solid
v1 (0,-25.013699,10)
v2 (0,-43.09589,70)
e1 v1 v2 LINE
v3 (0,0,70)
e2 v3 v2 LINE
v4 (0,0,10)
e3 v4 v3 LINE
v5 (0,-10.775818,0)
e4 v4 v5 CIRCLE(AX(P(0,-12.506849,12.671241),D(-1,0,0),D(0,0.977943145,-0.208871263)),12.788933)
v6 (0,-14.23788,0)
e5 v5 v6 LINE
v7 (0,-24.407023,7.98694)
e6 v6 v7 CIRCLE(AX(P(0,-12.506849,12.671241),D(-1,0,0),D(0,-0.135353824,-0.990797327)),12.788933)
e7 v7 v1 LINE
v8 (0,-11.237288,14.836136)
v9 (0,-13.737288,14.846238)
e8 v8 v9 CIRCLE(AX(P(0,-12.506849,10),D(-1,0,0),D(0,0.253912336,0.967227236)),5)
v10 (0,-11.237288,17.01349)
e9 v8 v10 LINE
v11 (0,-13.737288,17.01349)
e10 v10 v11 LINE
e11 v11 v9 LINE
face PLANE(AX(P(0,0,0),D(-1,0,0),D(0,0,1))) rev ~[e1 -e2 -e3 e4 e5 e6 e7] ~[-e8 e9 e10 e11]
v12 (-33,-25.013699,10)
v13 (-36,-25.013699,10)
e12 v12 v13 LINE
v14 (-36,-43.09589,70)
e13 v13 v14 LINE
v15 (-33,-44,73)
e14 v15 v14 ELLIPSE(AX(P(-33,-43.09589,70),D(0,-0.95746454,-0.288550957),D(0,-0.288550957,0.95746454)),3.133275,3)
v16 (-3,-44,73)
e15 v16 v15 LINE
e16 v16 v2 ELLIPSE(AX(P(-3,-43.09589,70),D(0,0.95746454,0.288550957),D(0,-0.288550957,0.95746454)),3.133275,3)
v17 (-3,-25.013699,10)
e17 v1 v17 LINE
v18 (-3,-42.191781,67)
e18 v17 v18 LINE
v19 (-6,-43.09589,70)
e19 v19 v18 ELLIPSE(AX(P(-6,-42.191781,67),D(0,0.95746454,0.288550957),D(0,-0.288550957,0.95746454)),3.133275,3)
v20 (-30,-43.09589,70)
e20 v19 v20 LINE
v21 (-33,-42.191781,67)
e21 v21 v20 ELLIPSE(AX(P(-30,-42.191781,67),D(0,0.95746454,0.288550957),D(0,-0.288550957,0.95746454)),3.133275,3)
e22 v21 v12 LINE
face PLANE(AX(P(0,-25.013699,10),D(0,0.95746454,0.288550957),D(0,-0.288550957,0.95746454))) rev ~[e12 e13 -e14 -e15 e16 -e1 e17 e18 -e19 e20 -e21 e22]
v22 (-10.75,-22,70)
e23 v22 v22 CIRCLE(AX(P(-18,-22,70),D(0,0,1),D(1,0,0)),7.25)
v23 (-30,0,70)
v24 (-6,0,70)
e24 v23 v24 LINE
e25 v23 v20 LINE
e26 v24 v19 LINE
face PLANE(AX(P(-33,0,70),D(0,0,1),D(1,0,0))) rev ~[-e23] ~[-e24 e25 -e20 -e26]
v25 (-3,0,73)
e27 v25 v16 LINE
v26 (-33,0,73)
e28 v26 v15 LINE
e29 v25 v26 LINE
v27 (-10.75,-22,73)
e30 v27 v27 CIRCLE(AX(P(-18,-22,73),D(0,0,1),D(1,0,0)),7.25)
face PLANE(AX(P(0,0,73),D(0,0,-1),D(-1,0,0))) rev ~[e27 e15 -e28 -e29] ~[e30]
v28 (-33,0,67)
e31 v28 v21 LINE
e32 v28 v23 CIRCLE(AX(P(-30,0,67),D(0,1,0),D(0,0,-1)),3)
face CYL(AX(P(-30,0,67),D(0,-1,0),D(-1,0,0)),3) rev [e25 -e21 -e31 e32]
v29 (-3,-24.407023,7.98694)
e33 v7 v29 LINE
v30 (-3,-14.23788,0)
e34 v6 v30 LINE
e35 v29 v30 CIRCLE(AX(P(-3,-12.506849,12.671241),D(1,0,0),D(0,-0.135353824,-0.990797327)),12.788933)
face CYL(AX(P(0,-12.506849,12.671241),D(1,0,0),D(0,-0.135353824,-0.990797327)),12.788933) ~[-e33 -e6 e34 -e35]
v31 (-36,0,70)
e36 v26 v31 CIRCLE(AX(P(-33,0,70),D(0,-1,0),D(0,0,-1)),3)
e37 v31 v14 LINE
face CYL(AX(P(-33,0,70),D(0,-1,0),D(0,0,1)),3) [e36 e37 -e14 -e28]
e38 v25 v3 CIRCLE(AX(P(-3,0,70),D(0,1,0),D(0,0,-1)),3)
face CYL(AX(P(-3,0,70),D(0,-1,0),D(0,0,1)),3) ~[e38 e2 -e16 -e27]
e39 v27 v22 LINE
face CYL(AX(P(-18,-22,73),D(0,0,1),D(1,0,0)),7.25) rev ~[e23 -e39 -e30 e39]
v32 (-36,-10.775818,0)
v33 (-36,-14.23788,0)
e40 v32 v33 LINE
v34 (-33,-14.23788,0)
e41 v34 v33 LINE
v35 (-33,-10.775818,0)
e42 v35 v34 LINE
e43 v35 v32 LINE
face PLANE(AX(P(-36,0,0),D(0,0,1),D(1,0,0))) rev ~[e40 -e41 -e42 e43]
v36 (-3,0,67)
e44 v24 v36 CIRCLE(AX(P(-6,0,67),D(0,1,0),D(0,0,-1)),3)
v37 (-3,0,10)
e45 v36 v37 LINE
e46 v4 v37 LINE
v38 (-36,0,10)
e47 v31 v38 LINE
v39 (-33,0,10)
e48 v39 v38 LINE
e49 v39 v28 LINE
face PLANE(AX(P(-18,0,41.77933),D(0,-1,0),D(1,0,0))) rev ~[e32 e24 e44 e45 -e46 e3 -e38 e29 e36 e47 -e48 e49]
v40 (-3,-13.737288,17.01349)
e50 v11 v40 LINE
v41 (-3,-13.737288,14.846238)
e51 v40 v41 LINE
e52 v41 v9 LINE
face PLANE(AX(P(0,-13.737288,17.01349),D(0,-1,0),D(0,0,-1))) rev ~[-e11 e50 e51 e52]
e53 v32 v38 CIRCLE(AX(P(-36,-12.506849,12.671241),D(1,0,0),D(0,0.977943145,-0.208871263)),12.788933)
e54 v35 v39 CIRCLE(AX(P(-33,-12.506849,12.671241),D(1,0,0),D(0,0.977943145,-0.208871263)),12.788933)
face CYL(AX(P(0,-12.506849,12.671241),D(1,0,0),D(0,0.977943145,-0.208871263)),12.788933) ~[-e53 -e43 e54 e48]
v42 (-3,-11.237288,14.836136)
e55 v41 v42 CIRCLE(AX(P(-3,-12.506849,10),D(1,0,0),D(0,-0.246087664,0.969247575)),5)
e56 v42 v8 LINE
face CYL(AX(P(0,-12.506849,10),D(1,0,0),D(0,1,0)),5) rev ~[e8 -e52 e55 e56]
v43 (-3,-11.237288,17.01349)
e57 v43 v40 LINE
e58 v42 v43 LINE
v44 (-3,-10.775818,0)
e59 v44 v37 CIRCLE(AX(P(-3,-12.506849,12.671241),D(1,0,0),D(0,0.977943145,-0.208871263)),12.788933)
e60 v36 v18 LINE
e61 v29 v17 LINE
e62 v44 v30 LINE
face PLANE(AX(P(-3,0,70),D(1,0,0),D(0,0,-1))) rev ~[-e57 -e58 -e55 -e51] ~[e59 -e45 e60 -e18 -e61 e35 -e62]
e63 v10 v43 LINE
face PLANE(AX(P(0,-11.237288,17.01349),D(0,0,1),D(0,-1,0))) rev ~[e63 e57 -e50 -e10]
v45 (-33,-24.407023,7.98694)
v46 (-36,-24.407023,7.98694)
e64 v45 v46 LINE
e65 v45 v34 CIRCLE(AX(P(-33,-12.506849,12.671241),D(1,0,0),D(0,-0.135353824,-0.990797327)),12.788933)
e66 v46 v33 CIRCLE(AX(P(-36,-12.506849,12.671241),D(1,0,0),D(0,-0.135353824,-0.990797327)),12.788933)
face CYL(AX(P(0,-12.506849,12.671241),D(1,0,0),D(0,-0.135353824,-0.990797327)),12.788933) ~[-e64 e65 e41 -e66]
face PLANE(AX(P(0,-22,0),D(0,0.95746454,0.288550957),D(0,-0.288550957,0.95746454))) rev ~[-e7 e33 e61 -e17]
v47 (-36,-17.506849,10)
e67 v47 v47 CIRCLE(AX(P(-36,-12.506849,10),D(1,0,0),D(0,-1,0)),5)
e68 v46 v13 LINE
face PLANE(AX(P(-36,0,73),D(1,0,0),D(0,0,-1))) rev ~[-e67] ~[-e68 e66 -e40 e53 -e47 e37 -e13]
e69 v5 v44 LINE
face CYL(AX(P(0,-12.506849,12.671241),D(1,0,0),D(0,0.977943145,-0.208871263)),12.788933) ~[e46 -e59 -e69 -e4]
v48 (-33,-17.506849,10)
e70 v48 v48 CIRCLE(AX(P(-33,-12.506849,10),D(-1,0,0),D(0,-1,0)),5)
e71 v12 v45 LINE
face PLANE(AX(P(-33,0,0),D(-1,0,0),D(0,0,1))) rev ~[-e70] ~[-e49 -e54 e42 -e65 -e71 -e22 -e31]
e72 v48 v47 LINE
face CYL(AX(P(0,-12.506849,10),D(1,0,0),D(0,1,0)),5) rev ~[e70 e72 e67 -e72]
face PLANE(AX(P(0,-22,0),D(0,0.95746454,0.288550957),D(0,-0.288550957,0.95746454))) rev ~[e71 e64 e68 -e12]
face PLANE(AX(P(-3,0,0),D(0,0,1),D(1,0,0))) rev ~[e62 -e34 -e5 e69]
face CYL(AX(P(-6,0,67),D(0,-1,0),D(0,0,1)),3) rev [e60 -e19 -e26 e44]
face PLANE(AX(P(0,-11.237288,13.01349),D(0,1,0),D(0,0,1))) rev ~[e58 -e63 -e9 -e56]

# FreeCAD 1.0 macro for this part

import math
import FreeCAD as App
import Part
import Sketcher


def edges_at(feature, points):
    """Names of the edges that pass closest to the given points."""
    edges = feature.Shape.Edges
    near = lambda p: min(range(len(edges)), key=lambda i: edges[i].distToShape(Part.Vertex(*p))[0])
    return sorted({f"Edge{near(p) + 1}" for p in points})


def add_polygon(sketch, points):
    """Adds a closed chain of lines whose ends are joined by coincident constraints."""
    first, n = sketch.GeometryCount, len(points)
    for a, b in zip(points, points[1:] + points[:1]):
        sketch.addGeometry(Part.LineSegment(App.Vector(*a, 0), App.Vector(*b, 0)), False)
    for i in range(n):
        sketch.addConstraint(Sketcher.Constraint("Coincident", first + i, 2, first + (i + 1) % n, 1))

doc = App.newDocument("Part")
body = doc.addObject("PartDesign::Body", "Body")

sketch1 = body.newObject("Sketcher::SketchObject", "Sketch")
sketch1.AttachmentSupport = (doc.getObject("XZ_Plane"), [""])
sketch1.MapMode = "FlatFace"
add_polygon(sketch1, [(-36, 0), (-33, 0), (-33, 70), (-3, 70), (-3, 0), (0, 0), (0, 73), (-36, 73)])
sketch1.addConstraint([
    Sketcher.Constraint("Horizontal", 0),
    Sketcher.Constraint("Vertical", 1),
    Sketcher.Constraint("Horizontal", 2),
    Sketcher.Constraint("Vertical", 3),
    Sketcher.Constraint("Horizontal", 4),
    Sketcher.Constraint("Vertical", 5),
    Sketcher.Constraint("Horizontal", 6),
    Sketcher.Constraint("Vertical", 7),
    Sketcher.Constraint("Coincident", 4, 2, -1, 1),
    Sketcher.Constraint("PointOnObject", 0, 2, -1),
    Sketcher.Constraint("Equal", 0, 4),
    Sketcher.Constraint("DistanceX", 0, 1, 0, 2, 3.0),
    Sketcher.Constraint("DistanceX", 2, 1, 2, 2, 30.0),
    Sketcher.Constraint("DistanceY", 1, 1, 1, 2, 70.0),
    Sketcher.Constraint("DistanceY", 5, 1, 5, 2, 73.0),
])
pad1 = body.newObject("PartDesign::Pad", "Pad")
pad1.Profile = sketch1
pad1.Length = 44

sketch2 = body.newObject("Sketcher::SketchObject", "Sketch001")
sketch2.AttachmentSupport = (doc.getObject("YZ_Plane"), [""])
sketch2.MapMode = "FlatFace"
add_polygon(sketch2, [(-44, 73), (-44, 0), (-22, 0), (-25, 10)])
sketch2.addConstraint([
    Sketcher.Constraint("Vertical", 0),
    Sketcher.Constraint("Horizontal", 1),
    Sketcher.Constraint("PointOnObject", 0, 2, -1),
    Sketcher.Constraint("Parallel", 2, 3),
    Sketcher.Constraint("DistanceX", 1, 1, 1, 2, 22.0),
    Sketcher.Constraint("DistanceY", 0, 2, 0, 1, 73.0),
    Sketcher.Constraint("DistanceX", 0, 2, -1, 1, 44.0),
    Sketcher.Constraint("DistanceY", -1, 1, 2, 2, 10.0),
])
pocket1 = body.newObject("PartDesign::Pocket", "Pocket")
pocket1.Profile = sketch2
pocket1.Length = 55.2

sketch3 = body.newObject("Sketcher::SketchObject", "Sketch002")
sketch3.AttachmentSupport = (doc.getObject("YZ_Plane"), [""])
sketch3.MapMode = "FlatFace"
sketch3.addGeometry([
    Part.LineSegment(App.Vector(-24.4, 8, 0), App.Vector(-25, 10, 0)),
    Part.ArcOfCircle(Part.Circle(App.Vector(-12.5, 12.7, 0), App.Vector(0, 0, 1), 12.8), math.radians(-167.94), math.radians(-158.51)),
    Part.LineSegment(App.Vector(-22, 0, 0), App.Vector(-14.2, 0, 0)),
    Part.ArcOfCircle(Part.Circle(App.Vector(-12.5, 12.7, 0), App.Vector(0, 0, 1), 12.8), math.radians(-159), math.radians(-98)),
    Part.LineSegment(App.Vector(-24.4, 8, 0), App.Vector(-22, 0, 0)),
    Part.LineSegment(App.Vector(0, 0, 0), App.Vector(0, 10, 0)),
    Part.ArcOfCircle(Part.Circle(App.Vector(-12.5, 12.7, 0), App.Vector(0, 0, 1), 12.8), math.radians(-82), math.radians(-12)),
    Part.LineSegment(App.Vector(-10.8, 0, 0), App.Vector(0, 0, 0)),
], False)
sketch3.addConstraint([
    Sketcher.Constraint("Coincident", 0, 1, 1, 2),
    Sketcher.Constraint("Coincident", 1, 1, 0, 2),
    Sketcher.Constraint("Coincident", 2, 2, 3, 2),
    Sketcher.Constraint("Coincident", 3, 1, 4, 1),
    Sketcher.Constraint("Coincident", 4, 2, 2, 1),
    Sketcher.Constraint("Coincident", 5, 2, 6, 2),
    Sketcher.Constraint("Coincident", 6, 1, 7, 1),
    Sketcher.Constraint("Coincident", 7, 2, 5, 1),
    Sketcher.Constraint("Horizontal", 2),
    Sketcher.Constraint("Vertical", 5),
    Sketcher.Constraint("Horizontal", 7),
    Sketcher.Constraint("Coincident", 7, 2, -1, 1),
    Sketcher.Constraint("Coincident", 3, 3, 1, 3),
    Sketcher.Constraint("Coincident", 6, 3, 1, 3),
    Sketcher.Constraint("Coincident", 3, 1, 0, 1),
    Sketcher.Constraint("Equal", 3, 6),
    Sketcher.Constraint("PointOnObject", 2, 2, -1),
    Sketcher.Constraint("Parallel", 0, 4),
    Sketcher.Constraint("Horizontal", 1, 1, 5, 2),
    Sketcher.Constraint("DistanceY", 5, 1, 5, 2, 10.0),
    Sketcher.Constraint("DistanceX", 4, 2, -1, 1, 22.0),
    Sketcher.Constraint("Radius", 1, 12.788933),
    Sketcher.Constraint("DistanceX", 2, 1, 2, 2, 7.76212),
])
pocket2 = body.newObject("PartDesign::Pocket", "Pocket001")
pocket2.Profile = sketch3
pocket2.Length = 63.6

sketch4 = body.newObject("Sketcher::SketchObject", "Sketch003")
sketch4.AttachmentSupport = (doc.getObject("YZ_Plane"), [""])
sketch4.MapMode = "FlatFace"
sketch4.addGeometry(Part.Circle(App.Vector(-13, 10, 0), App.Vector(0, 0, 1), 5), False)
sketch4.addConstraint([
    Sketcher.Constraint("Diameter", 0, 10.0),
    Sketcher.Constraint("DistanceY", -1, 1, 0, 3, 10.0),
    Sketcher.Constraint("DistanceX", 0, 3, -1, 1, 12.506849),
])
pocket3 = body.newObject("PartDesign::Pocket", "Pocket002")
pocket3.Profile = sketch4
pocket3.Length = 49.8

sketch5 = body.newObject("Sketcher::SketchObject", "Sketch004")
sketch5.AttachmentSupport = (doc.getObject("YZ_Plane"), [""])
sketch5.MapMode = "FlatFace"
add_polygon(sketch5, [(-11.2, 17), (-13.7, 17), (-13.7, 13), (-11.2, 13)])
sketch5.addConstraint([
    Sketcher.Constraint("Horizontal", 0),
    Sketcher.Constraint("Vertical", 1),
    Sketcher.Constraint("Horizontal", 2),
    Sketcher.Constraint("Vertical", 3),
    Sketcher.Constraint("DistanceY", 1, 2, 1, 1, 4.0),
    Sketcher.Constraint("DistanceX", 0, 2, 0, 1, 2.5),
    Sketcher.Constraint("DistanceY", -1, 1, 0, 2, 17.01349),
    Sketcher.Constraint("DistanceX", 0, 2, -1, 1, 13.737288),
])
pocket4 = body.newObject("PartDesign::Pocket", "Pocket003")
pocket4.Profile = sketch5
pocket4.Length = 25

sketch6 = body.newObject("Sketcher::SketchObject", "Sketch005")
sketch6.AttachmentSupport = (doc.getObject("XY_Plane"), [""])
sketch6.MapMode = "FlatFace"
sketch6.AttachmentOffset = App.Placement(App.Vector(0, 0, 73), App.Rotation())
sketch6.addGeometry(Part.Circle(App.Vector(-18, -22, 0), App.Vector(0, 0, 1), 7), False)
sketch6.addConstraint([
    Sketcher.Constraint("Diameter", 0, 14.5),
    Sketcher.Constraint("DistanceX", 0, 3, -1, 1, 18.0),
    Sketcher.Constraint("DistanceY", 0, 3, -1, 1, 22.0),
])
pocket5 = body.newObject("PartDesign::Pocket", "Pocket004")
pocket5.Profile = sketch6
pocket5.Length = 25
doc.recompute()

fillet = body.newObject("PartDesign::Fillet", "Fillet")
fillet.Base = (pocket5, edges_at(pocket5, [(0, -22, 73)]))
fillet.Radius = 3
doc.recompute()

fillet2 = body.newObject("PartDesign::Fillet", "Fillet001")
fillet2.Base = (fillet, edges_at(fillet, [(-36, -22, 73)]))
fillet2.Radius = 3
doc.recompute()

fillet3 = body.newObject("PartDesign::Fillet", "Fillet002")
fillet3.Base = (fillet2, edges_at(fillet2, [(-33, -21.548, 70)]))
fillet3.Radius = 3
doc.recompute()

fillet4 = body.newObject("PartDesign::Fillet", "Fillet003")
fillet4.Base = (fillet3, edges_at(fillet3, [(-3, -21.548, 70)]))
fillet4.Radius = 3

doc.recompute()
